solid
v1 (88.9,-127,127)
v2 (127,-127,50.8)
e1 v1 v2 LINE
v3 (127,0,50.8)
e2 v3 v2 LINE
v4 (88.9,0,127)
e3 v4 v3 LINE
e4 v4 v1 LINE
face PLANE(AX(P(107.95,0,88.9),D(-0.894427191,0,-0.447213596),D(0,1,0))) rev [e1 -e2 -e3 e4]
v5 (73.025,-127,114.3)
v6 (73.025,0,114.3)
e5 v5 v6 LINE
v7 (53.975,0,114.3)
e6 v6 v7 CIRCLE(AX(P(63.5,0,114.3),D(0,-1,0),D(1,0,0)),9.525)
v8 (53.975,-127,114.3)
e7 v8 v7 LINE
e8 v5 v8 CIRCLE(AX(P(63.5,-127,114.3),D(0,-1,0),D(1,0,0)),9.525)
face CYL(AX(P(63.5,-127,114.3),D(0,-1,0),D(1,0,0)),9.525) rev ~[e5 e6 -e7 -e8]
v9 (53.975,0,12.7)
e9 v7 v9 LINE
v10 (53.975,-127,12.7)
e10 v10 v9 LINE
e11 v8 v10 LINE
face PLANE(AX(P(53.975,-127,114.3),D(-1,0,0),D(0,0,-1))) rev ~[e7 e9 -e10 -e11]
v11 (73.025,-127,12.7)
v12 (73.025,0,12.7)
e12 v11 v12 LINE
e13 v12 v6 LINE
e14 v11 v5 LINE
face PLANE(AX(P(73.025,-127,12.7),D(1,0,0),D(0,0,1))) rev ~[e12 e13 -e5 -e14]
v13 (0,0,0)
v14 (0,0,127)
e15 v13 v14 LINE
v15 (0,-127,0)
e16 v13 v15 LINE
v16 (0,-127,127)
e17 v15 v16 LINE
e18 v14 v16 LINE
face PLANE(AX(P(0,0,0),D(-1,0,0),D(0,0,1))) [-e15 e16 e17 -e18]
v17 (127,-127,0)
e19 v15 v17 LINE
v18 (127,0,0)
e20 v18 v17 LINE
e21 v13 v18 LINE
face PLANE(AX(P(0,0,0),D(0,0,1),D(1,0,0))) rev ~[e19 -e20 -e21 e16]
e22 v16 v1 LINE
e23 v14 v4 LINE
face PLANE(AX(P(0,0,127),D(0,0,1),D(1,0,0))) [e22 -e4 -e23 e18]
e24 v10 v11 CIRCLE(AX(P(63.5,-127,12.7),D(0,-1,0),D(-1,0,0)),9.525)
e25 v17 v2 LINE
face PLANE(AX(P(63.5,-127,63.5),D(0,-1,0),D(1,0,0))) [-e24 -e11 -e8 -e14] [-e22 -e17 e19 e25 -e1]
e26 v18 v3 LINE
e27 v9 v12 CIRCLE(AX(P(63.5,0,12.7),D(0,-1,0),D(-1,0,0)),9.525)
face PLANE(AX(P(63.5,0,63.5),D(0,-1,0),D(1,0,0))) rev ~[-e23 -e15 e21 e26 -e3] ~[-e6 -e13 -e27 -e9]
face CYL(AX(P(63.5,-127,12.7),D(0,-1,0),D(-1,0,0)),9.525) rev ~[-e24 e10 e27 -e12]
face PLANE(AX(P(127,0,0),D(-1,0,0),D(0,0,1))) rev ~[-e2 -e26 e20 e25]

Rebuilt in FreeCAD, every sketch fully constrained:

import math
import FreeCAD as App
import Part
import Sketcher

V = App.Vector
Q = App.Units.Quantity


def edges_at(feature, points):
    """Names of the edges that pass closest to the given points."""
    edges = feature.Shape.Edges
    near = lambda p: min(range(len(edges)), key=lambda i: edges[i].distToShape(Part.Vertex(*p))[0])
    return sorted({f"Edge{near(p) + 1}" for p in points})

doc = App.newDocument("Part")
body = doc.addObject("PartDesign::Body", "Body")

# Sketch on XZ plane
sketch1 = body.newObject("Sketcher::SketchObject", "Sketch")
sketch1.AttachmentSupport = (doc.getObject("XZ_Plane"), [""])
sketch1.MapMode = "FlatFace"
sketch1.addGeometry([
    Part.LineSegment(V(0, 127, 0), V(0, 0, 0)),
    Part.LineSegment(V(0, 0, 0), V(127, 0, 0)),
    Part.LineSegment(V(127, 0, 0), V(127, 127, 0)),
    Part.LineSegment(V(127, 127, 0), V(0, 127, 0)),
], False)
sketch1.addConstraint([
    Sketcher.Constraint("Coincident", 0, 2, 1, 1),
    Sketcher.Constraint("Coincident", 1, 2, 2, 1),
    Sketcher.Constraint("Coincident", 2, 2, 3, 1),
    Sketcher.Constraint("Coincident", 3, 2, 0, 1),
    Sketcher.Constraint("Vertical", 0),
    Sketcher.Constraint("Horizontal", 1),
    Sketcher.Constraint("Vertical", 2),
    Sketcher.Constraint("Horizontal", 3),
    Sketcher.Constraint("Coincident", 0, 2, -1, 1),
    Sketcher.Constraint("Equal", 3, 0),
    Sketcher.Constraint("DistanceX", 1, 1, 1, 2, Q("5 in")),
])
pad1 = body.newObject("PartDesign::Pad", "Pad")
pad1.Profile = sketch1
pad1.Length = Q("5 in")

# Sketch on XZ plane
sketch2 = body.newObject("Sketcher::SketchObject", "Sketch001")
sketch2.AttachmentSupport = (doc.getObject("XZ_Plane"), [""])
sketch2.MapMode = "FlatFace"
sketch2.AttachmentOffset = App.Placement(V(0, 0, 5 * 25.4), App.Rotation())
sketch2.addGeometry([
    Part.LineSegment(V(73, 13, 0), V(73, 114, 0)),
    Part.ArcOfCircle(Part.Circle(V(64, 114, 0), V(0, 0, 1), 10), math.radians(0), math.radians(180)),
    Part.LineSegment(V(54, 114, 0), V(54, 13, 0)),
    Part.ArcOfCircle(Part.Circle(V(64, 13, 0), V(0, 0, 1), 10), math.radians(180), math.radians(360)),
], False)
sketch2.addConstraint([
    Sketcher.Constraint("Tangent", 0, 2, 1, 1),
    Sketcher.Constraint("Tangent", 1, 2, 2, 1),
    Sketcher.Constraint("Tangent", 2, 2, 3, 1),
    Sketcher.Constraint("Tangent", 3, 2, 0, 1),
    Sketcher.Constraint("Vertical", 0),
    Sketcher.Constraint("Vertical", 2),
    Sketcher.Constraint("DistanceY", 0, 1, 0, 2, Q("4 in")),
    Sketcher.Constraint("Radius", 1, Q("0.375 in")),
    Sketcher.Constraint("DistanceX", -1, 1, 1, 3, Q("2.5 in")),
    Sketcher.Constraint("DistanceY", -1, 1, 1, 3, Q("4.5 in")),
])
pocket1 = body.newObject("PartDesign::Pocket", "Pocket")
pocket1.Profile = sketch2
pocket1.Type = "ThroughAll"
doc.recompute()

chamfer = body.newObject("PartDesign::Chamfer", "Chamfer")
chamfer.Base = (pocket1, edges_at(pocket1, [(127, -63.5, 127)]))
chamfer.ChamferType = "Two distances"
chamfer.Size = Q("1.5 in")
chamfer.Size2 = Q("3 in")

doc.recompute()
